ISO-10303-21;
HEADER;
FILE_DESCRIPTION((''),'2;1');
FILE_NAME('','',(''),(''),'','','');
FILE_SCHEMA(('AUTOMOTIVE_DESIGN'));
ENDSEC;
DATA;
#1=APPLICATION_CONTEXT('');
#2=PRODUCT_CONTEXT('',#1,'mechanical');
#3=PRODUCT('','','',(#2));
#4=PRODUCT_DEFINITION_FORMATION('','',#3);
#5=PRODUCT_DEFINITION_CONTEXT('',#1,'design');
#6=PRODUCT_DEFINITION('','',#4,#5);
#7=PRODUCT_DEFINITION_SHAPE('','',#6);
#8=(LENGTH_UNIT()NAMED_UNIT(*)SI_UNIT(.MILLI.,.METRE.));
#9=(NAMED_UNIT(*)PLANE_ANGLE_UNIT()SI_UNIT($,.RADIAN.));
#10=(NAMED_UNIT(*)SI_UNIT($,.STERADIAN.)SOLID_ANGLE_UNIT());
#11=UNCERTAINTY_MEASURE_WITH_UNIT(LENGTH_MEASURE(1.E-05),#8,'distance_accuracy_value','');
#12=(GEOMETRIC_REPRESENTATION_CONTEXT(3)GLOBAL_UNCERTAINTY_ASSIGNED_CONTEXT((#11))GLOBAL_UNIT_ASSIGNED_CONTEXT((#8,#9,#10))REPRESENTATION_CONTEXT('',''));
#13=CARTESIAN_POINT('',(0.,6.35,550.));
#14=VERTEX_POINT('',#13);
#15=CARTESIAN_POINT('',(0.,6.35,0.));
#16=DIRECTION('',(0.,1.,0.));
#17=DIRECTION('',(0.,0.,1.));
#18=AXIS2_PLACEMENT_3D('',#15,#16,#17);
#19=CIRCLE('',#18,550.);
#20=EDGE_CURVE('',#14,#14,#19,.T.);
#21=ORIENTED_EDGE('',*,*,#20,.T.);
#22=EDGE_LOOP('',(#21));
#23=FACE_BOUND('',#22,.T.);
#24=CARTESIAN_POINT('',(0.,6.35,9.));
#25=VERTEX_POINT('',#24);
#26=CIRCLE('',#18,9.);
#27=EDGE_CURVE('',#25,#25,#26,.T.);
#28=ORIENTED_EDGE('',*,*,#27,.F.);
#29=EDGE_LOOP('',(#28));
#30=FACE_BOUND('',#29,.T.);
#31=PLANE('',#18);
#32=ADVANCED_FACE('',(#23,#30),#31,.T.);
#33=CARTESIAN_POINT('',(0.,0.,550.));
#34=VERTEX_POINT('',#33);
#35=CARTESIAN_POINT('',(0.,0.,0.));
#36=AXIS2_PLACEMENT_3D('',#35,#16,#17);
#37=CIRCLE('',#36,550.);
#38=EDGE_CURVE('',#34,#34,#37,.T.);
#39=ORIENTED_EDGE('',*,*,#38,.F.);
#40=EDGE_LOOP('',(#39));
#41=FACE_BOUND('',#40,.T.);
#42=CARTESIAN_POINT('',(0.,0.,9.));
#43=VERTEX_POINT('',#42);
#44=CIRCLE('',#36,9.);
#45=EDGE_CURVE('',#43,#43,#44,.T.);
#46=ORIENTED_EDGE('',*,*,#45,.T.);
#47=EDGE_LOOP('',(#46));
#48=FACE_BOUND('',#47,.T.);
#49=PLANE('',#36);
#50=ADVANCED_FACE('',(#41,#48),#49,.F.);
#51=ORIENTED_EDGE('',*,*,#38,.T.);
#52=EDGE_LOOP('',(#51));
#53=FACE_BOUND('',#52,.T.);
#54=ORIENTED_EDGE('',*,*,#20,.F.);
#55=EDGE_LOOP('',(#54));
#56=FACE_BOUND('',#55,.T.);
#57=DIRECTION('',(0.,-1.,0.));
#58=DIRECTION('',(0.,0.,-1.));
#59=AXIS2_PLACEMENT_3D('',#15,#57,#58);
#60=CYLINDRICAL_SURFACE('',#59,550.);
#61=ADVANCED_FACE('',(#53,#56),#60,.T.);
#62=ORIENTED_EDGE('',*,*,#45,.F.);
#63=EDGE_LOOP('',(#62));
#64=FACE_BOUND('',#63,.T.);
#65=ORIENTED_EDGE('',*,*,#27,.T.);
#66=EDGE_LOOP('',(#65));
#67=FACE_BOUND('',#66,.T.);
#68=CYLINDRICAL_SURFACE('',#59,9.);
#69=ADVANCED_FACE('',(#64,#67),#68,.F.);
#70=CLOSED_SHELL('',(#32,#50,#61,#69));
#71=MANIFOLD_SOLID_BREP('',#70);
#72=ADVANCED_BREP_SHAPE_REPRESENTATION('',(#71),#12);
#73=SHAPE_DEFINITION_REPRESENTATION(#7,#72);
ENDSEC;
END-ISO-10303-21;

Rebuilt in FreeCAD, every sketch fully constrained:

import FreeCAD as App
import Part
import Sketcher
Q = App.Units.Quantity

doc = App.newDocument("Part")
body = doc.addObject("PartDesign::Body", "Body")

# Sketch on XZ plane
sketch1 = body.newObject("Sketcher::SketchObject", "Sketch")
sketch1.AttachmentSupport = (doc.getObject("XZ_Plane"), [""])
sketch1.MapMode = "FlatFace"
sketch1.addGeometry([
    Part.Circle(App.Vector(0, 0, 0), App.Vector(0, 0, 1), 550),
    Part.Circle(App.Vector(0, 0, 0), App.Vector(0, 0, 1), 9),
], False)
sketch1.addConstraint([
    Sketcher.Constraint("Coincident", 0, 3, -1, 1),
    Sketcher.Constraint("Coincident", 1, 3, -1, 1),
    Sketcher.Constraint("Diameter", 0, Q("1100 mm")),
    Sketcher.Constraint("Diameter", 1, Q("18 mm")),
])
pad1 = body.newObject("PartDesign::Pad", "Pad")
pad1.Profile = sketch1
pad1.Length = 6.35
pad1.Reversed = True

doc.recompute()
